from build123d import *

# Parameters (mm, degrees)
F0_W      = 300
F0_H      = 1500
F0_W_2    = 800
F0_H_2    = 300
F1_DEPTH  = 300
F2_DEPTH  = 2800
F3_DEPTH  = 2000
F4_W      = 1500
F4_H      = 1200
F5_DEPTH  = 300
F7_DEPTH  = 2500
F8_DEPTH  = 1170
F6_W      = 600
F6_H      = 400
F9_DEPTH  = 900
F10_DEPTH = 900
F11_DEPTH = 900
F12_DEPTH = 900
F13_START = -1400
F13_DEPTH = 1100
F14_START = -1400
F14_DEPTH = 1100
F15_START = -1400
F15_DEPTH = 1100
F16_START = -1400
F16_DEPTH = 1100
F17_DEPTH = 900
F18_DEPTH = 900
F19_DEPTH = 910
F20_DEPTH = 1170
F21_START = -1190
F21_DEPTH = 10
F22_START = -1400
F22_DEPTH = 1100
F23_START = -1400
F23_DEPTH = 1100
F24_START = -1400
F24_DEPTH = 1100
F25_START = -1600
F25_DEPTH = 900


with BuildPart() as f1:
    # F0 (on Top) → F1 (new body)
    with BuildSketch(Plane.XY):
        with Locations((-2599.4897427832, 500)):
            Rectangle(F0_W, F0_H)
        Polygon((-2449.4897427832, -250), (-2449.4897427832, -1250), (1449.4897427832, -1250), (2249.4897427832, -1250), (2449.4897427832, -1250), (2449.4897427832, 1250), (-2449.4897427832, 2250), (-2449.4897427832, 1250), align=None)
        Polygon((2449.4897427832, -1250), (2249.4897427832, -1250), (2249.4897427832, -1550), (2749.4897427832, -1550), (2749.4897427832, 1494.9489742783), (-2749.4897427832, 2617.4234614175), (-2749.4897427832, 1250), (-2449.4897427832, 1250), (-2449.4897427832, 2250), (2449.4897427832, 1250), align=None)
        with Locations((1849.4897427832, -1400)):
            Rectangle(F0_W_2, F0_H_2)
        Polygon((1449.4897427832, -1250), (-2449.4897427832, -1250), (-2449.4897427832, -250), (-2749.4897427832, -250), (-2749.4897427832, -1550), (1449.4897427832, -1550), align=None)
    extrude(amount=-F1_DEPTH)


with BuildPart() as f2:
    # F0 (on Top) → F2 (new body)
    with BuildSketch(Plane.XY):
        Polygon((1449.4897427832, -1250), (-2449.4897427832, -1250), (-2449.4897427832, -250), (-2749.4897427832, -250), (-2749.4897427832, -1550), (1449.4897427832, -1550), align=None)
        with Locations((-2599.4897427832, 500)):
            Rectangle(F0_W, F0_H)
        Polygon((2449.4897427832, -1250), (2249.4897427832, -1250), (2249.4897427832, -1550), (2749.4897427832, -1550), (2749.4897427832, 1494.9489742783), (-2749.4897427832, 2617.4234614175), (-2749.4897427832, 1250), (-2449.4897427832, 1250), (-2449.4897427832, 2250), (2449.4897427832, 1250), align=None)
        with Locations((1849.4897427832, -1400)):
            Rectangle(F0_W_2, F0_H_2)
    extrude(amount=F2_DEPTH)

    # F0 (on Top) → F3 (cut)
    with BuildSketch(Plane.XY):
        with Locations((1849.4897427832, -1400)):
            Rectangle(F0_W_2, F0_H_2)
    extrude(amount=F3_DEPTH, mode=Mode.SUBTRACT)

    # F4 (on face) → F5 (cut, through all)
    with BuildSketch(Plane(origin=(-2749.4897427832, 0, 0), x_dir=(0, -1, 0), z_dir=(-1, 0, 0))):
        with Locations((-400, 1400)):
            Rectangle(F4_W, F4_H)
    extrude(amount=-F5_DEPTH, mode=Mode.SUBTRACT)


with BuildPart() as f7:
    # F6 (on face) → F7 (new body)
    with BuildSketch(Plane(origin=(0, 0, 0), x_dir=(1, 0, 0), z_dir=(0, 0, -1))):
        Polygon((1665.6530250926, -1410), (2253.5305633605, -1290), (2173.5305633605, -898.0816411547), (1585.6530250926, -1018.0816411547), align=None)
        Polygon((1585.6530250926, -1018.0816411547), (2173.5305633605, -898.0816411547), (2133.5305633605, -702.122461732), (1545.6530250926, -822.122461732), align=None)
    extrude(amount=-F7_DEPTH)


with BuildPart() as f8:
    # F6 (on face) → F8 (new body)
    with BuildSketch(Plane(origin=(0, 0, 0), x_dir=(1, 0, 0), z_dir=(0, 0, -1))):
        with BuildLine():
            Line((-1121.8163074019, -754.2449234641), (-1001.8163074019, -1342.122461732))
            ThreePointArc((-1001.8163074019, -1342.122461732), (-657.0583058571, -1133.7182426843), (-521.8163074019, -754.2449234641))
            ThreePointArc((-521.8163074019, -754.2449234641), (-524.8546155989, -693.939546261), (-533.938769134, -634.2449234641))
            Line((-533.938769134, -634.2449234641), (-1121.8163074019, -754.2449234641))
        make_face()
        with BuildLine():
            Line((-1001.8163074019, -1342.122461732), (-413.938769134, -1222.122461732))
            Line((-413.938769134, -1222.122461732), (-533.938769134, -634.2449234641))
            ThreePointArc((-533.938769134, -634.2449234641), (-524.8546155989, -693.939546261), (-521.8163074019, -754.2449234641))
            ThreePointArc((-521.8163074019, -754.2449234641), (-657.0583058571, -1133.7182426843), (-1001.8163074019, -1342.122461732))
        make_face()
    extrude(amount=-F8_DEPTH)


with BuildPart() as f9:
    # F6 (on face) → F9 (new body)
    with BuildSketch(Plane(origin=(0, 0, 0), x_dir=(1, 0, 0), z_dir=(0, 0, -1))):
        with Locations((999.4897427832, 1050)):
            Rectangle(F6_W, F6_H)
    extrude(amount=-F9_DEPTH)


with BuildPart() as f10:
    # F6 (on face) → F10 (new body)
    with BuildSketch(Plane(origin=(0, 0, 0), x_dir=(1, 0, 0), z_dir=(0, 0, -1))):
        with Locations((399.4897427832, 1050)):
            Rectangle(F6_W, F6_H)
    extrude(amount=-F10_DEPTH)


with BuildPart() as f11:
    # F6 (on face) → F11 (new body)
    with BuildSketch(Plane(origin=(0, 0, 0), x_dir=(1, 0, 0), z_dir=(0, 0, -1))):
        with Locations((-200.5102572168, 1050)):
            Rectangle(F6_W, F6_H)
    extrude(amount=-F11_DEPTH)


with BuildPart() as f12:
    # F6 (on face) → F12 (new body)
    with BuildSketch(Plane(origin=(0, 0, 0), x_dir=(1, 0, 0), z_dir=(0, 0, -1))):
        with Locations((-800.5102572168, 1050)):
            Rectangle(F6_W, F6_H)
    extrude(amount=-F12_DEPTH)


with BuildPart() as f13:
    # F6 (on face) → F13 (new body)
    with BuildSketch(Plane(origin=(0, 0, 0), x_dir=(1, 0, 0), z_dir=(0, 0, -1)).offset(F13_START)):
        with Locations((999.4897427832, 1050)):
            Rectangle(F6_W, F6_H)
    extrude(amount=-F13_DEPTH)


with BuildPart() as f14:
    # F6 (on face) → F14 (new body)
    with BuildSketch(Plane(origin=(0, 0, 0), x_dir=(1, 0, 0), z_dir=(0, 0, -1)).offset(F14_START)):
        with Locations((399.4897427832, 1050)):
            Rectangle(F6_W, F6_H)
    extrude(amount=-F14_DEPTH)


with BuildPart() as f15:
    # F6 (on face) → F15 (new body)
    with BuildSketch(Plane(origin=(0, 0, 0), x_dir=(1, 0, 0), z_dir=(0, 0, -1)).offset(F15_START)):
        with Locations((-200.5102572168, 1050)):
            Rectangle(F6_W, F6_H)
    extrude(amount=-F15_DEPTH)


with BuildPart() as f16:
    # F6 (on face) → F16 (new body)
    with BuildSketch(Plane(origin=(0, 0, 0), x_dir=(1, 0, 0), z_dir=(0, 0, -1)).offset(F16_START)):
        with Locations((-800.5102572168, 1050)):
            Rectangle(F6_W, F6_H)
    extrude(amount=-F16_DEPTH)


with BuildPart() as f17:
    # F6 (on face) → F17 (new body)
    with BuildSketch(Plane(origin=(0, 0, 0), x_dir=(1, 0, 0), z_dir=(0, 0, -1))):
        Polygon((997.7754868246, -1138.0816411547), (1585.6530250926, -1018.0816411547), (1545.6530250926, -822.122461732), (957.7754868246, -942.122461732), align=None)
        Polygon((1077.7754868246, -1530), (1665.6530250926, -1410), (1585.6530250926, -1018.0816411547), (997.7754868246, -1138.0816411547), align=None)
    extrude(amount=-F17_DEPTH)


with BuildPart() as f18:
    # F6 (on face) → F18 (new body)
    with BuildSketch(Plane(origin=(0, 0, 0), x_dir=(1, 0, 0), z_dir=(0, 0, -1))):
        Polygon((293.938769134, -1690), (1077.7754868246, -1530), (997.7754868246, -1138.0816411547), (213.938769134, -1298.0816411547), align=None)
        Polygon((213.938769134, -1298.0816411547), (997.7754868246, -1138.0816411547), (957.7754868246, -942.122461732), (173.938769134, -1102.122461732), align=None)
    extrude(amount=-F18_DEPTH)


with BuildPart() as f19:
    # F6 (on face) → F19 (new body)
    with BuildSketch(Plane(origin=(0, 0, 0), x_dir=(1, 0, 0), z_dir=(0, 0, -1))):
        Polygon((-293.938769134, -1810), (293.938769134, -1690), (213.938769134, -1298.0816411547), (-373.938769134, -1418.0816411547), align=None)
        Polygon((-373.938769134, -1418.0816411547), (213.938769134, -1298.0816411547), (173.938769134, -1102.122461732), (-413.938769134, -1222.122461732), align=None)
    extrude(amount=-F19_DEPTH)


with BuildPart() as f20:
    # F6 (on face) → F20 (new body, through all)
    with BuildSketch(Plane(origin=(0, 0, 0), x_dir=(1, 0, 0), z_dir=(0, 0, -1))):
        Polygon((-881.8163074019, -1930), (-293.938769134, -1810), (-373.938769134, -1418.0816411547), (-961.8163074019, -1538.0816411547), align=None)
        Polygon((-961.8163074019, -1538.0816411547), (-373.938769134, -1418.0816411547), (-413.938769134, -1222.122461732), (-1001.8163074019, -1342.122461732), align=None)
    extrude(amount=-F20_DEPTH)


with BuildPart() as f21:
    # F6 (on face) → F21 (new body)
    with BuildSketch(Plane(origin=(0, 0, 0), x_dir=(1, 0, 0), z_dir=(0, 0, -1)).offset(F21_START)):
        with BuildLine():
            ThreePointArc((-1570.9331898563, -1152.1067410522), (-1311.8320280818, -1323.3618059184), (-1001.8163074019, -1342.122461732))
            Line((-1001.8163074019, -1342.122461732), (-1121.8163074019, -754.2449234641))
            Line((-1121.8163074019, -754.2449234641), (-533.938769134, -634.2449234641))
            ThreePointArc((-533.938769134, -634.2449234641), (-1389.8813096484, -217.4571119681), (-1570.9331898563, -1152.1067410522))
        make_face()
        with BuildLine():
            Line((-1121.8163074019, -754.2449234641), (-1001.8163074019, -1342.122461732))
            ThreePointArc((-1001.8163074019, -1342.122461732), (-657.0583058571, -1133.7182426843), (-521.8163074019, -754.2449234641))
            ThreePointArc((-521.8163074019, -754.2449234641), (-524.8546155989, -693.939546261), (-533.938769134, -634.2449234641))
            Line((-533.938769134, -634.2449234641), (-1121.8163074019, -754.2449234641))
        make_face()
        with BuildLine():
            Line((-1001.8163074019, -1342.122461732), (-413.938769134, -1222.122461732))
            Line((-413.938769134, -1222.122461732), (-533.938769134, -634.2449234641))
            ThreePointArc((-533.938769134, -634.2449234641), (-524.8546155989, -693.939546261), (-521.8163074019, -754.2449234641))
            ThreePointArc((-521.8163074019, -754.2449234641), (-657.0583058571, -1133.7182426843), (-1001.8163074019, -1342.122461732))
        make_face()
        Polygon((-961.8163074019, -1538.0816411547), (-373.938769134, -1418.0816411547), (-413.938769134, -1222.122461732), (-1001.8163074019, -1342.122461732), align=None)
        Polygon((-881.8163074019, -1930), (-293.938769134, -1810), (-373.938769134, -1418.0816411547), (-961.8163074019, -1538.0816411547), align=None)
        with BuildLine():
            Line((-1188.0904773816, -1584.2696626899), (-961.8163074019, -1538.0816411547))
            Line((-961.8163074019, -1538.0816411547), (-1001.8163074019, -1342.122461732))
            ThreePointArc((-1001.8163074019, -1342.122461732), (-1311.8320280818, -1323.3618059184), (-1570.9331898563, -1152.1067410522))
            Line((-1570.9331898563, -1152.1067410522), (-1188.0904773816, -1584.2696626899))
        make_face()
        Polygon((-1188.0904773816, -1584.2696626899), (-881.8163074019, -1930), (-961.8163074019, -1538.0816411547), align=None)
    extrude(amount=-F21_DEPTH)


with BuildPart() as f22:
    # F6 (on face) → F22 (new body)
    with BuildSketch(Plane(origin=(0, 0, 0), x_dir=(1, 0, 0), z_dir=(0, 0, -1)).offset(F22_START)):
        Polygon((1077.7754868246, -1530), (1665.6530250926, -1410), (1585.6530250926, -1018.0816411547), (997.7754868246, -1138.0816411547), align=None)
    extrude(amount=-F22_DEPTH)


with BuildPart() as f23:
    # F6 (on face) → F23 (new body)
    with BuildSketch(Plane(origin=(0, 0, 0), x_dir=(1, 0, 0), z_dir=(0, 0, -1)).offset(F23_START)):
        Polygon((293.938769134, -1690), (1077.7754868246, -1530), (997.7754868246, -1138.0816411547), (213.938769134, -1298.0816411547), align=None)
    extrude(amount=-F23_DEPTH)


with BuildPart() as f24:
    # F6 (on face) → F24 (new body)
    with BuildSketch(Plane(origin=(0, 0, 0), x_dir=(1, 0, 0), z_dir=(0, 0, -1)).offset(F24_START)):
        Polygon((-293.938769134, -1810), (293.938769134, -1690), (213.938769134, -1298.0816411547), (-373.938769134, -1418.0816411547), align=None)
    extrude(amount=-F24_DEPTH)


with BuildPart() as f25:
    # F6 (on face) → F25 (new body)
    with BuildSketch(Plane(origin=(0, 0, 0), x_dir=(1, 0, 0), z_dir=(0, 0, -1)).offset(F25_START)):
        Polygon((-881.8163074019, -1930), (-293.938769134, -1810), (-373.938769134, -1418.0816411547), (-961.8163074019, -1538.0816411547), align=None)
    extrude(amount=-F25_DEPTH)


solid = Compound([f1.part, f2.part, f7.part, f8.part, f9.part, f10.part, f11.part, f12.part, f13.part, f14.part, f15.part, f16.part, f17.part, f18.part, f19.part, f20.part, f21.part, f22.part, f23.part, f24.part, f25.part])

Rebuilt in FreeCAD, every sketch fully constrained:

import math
import FreeCAD as App
import Part
import Sketcher

doc = App.newDocument("Part")
body = doc.addObject("PartDesign::Body", "Body")

sketch1 = body.newObject("Sketcher::SketchObject", "Sketch")
sketch1.AttachmentSupport = (doc.getObject("XY_Plane"), [""])
sketch1.MapMode = "FlatFace"
sketch1.addGeometry([
    Part.LineSegment(App.Vector(2749, -1550, 0), App.Vector(2749, 1495, 0)),
    Part.LineSegment(App.Vector(2749, 1495, 0), App.Vector(-2749, 2617, 0)),
    Part.LineSegment(App.Vector(-2749, 2617, 0), App.Vector(-2749, -1550, 0)),
    Part.LineSegment(App.Vector(-2749, -1550, 0), App.Vector(2749, -1550, 0)),
], False)
sketch1.addConstraint([
    Sketcher.Constraint("Coincident", 0, 2, 1, 1),
    Sketcher.Constraint("Coincident", 1, 2, 2, 1),
    Sketcher.Constraint("Coincident", 2, 2, 3, 1),
    Sketcher.Constraint("Coincident", 3, 2, 0, 1),
    Sketcher.Constraint("Vertical", 0),
    Sketcher.Constraint("Vertical", 2),
    Sketcher.Constraint("Horizontal", 3),
    Sketcher.Constraint("DistanceY", 2, 2, -1, 1, 1550.0),
    Sketcher.Constraint("DistanceY", 2, 2, 2, 1, 4167.423461),
    Sketcher.Constraint("DistanceX", 3, 1, 3, 2, 5498.979486),
    Sketcher.Constraint("DistanceY", 0, 1, 0, 2, 3044.948974),
    Sketcher.Constraint("DistanceX", -1, 1, 0, 2, 2749.489743),
])
pad1 = body.newObject("PartDesign::Pad", "Pad")
pad1.Profile = sketch1
pad1.Length = 300
pad1.Reversed = True
body2 = doc.addObject("PartDesign::Body", "Body001")

sketch2 = body2.newObject("Sketcher::SketchObject", "Sketch001")
sketch2.AttachmentSupport = (doc.getObject("XY_Plane001"), [""])
sketch2.MapMode = "FlatFace"
sketch2.addGeometry([
    Part.LineSegment(App.Vector(2749, -1550, 0), App.Vector(2749, 1495, 0)),
    Part.LineSegment(App.Vector(2749, 1495, 0), App.Vector(-2749, 2617, 0)),
    Part.LineSegment(App.Vector(-2749, 2617, 0), App.Vector(-2749, -1550, 0)),
    Part.LineSegment(App.Vector(-2749, -1550, 0), App.Vector(2749, -1550, 0)),
    Part.LineSegment(App.Vector(-2449, -1250, 0), App.Vector(-2449, 2250, 0)),
    Part.LineSegment(App.Vector(-2449, 2250, 0), App.Vector(2449, 1250, 0)),
    Part.LineSegment(App.Vector(2449, 1250, 0), App.Vector(2449, -1250, 0)),
    Part.LineSegment(App.Vector(2449, -1250, 0), App.Vector(-2449, -1250, 0)),
], False)
sketch2.addConstraint([
    Sketcher.Constraint("Coincident", 0, 2, 1, 1),
    Sketcher.Constraint("Coincident", 1, 2, 2, 1),
    Sketcher.Constraint("Coincident", 2, 2, 3, 1),
    Sketcher.Constraint("Coincident", 3, 2, 0, 1),
    Sketcher.Constraint("Coincident", 4, 2, 5, 1),
    Sketcher.Constraint("Coincident", 5, 2, 6, 1),
    Sketcher.Constraint("Coincident", 6, 2, 7, 1),
    Sketcher.Constraint("Coincident", 7, 2, 4, 1),
    Sketcher.Constraint("Vertical", 0),
    Sketcher.Constraint("Vertical", 2),
    Sketcher.Constraint("Horizontal", 3),
    Sketcher.Constraint("Vertical", 4),
    Sketcher.Constraint("Vertical", 6),
    Sketcher.Constraint("Horizontal", 7),
    Sketcher.Constraint("Symmetric", 5, 2, 7, 2, -1, 1),
    Sketcher.Constraint("Parallel", 1, 5),
    Sketcher.Constraint("DistanceY", 4, 1, 4, 2, 3500.0),
    Sketcher.Constraint("DistanceY", 6, 2, 6, 1, 2500.0),
    Sketcher.Constraint("Distance", 5, 5000.0),
    Sketcher.Constraint("DistanceY", 2, 2, -1, 1, 1550.0),
    Sketcher.Constraint("DistanceX", 1, 2, 4, 2, 300.0),
    Sketcher.Constraint("DistanceX", 5, 2, 0, 2, 300.0),
    Sketcher.Constraint("DistanceY", 2, 2, 2, 1, 4167.423461),
])
pad2 = body2.newObject("PartDesign::Pad", "Pad001")
pad2.Profile = sketch2
pad2.Length = 2800

sketch3 = body2.newObject("Sketcher::SketchObject", "Sketch002")
sketch3.AttachmentSupport = (doc.getObject("XY_Plane001"), [""])
sketch3.MapMode = "FlatFace"
sketch3.addGeometry([
    Part.LineSegment(App.Vector(1449, -1250, 0), App.Vector(1449, -1550, 0)),
    Part.LineSegment(App.Vector(1449, -1550, 0), App.Vector(2249, -1550, 0)),
    Part.LineSegment(App.Vector(2249, -1550, 0), App.Vector(2249, -1250, 0)),
    Part.LineSegment(App.Vector(2249, -1250, 0), App.Vector(1449, -1250, 0)),
], False)
sketch3.addConstraint([
    Sketcher.Constraint("Coincident", 0, 2, 1, 1),
    Sketcher.Constraint("Coincident", 1, 2, 2, 1),
    Sketcher.Constraint("Coincident", 2, 2, 3, 1),
    Sketcher.Constraint("Coincident", 3, 2, 0, 1),
    Sketcher.Constraint("Vertical", 0),
    Sketcher.Constraint("Horizontal", 1),
    Sketcher.Constraint("Vertical", 2),
    Sketcher.Constraint("Horizontal", 3),
    Sketcher.Constraint("DistanceX", 1, 1, 1, 2, 800.0),
    Sketcher.Constraint("DistanceY", 0, 2, 0, 1, 300.0),
    Sketcher.Constraint("DistanceY", 0, 2, -1, 1, 1550.0),
    Sketcher.Constraint("DistanceX", -1, 1, 0, 2, 1449.489743),
])
pocket1 = body2.newObject("PartDesign::Pocket", "Pocket")
pocket1.Profile = sketch3
pocket1.Length = 2000
pocket1.Reversed = True

sketch4 = body2.newObject("Sketcher::SketchObject", "Sketch003")
sketch4.AttachmentSupport = (doc.getObject("YZ_Plane001"), [""])
sketch4.MapMode = "FlatFace"
sketch4.AttachmentOffset = App.Placement(App.Vector(0, 0, -2749.489743), App.Rotation())
sketch4.addGeometry([
    Part.LineSegment(App.Vector(1150, 2000, 0), App.Vector(1150, 800, 0)),
    Part.LineSegment(App.Vector(1150, 800, 0), App.Vector(-350, 800, 0)),
    Part.LineSegment(App.Vector(-350, 800, 0), App.Vector(-350, 2000, 0)),
    Part.LineSegment(App.Vector(-350, 2000, 0), App.Vector(1150, 2000, 0)),
], False)
sketch4.addConstraint([
    Sketcher.Constraint("Coincident", 0, 2, 1, 1),
    Sketcher.Constraint("Coincident", 1, 2, 2, 1),
    Sketcher.Constraint("Coincident", 2, 2, 3, 1),
    Sketcher.Constraint("Coincident", 3, 2, 0, 1),
    Sketcher.Constraint("Vertical", 0),
    Sketcher.Constraint("Horizontal", 1),
    Sketcher.Constraint("Vertical", 2),
    Sketcher.Constraint("Horizontal", 3),
    Sketcher.Constraint("DistanceX", 1, 2, 1, 1, 1500.0),
    Sketcher.Constraint("DistanceY", 0, 2, 0, 1, 1200.0),
    Sketcher.Constraint("DistanceX", -1, 1, 0, 2, 1150.0),
    Sketcher.Constraint("DistanceY", -1, 1, 0, 2, 800.0),
])
pocket2 = body2.newObject("PartDesign::Pocket", "Pocket001")
pocket2.Profile = sketch4
pocket2.Length = 300
pocket2.Reversed = True
body3 = doc.addObject("PartDesign::Body", "Body002")

sketch5 = body3.newObject("Sketcher::SketchObject", "Sketch004")
sketch5.AttachmentSupport = (doc.getObject("XY_Plane002"), [""])
sketch5.MapMode = "FlatFace"
sketch5.addGeometry([
    Part.LineSegment(App.Vector(1666, 1410, 0), App.Vector(2254, 1290, 0)),
    Part.LineSegment(App.Vector(2254, 1290, 0), App.Vector(2134, 702, 0)),
    Part.LineSegment(App.Vector(2134, 702, 0), App.Vector(1546, 822, 0)),
    Part.LineSegment(App.Vector(1546, 822, 0), App.Vector(1666, 1410, 0)),
], False)
sketch5.addConstraint([
    Sketcher.Constraint("Coincident", 0, 2, 1, 1),
    Sketcher.Constraint("Coincident", 1, 2, 2, 1),
    Sketcher.Constraint("Coincident", 2, 2, 3, 1),
    Sketcher.Constraint("Coincident", 3, 2, 0, 1),
    Sketcher.Constraint("Perpendicular", 0, 1),
    Sketcher.Constraint("Perpendicular", 1, 2),
    Sketcher.Constraint("Perpendicular", 2, 3),
    Sketcher.Constraint("Equal", 0, 1),
    Sketcher.Constraint("Distance", 0, 600.0),
    Sketcher.Constraint("DistanceY", -1, 1, 0, 2, 1290.0),
    Sketcher.Constraint("DistanceY", -1, 1, 3, 2, 1410.0),
    Sketcher.Constraint("DistanceX", -1, 1, 0, 2, 2253.530563),
])
pad3 = body3.newObject("PartDesign::Pad", "Pad002")
pad3.Profile = sketch5
pad3.Length = 2500
body4 = doc.addObject("PartDesign::Body", "Body003")

sketch6 = body4.newObject("Sketcher::SketchObject", "Sketch005")
sketch6.AttachmentSupport = (doc.getObject("XY_Plane003"), [""])
sketch6.MapMode = "FlatFace"
sketch6.addGeometry([
    Part.LineSegment(App.Vector(-1122, 754, 0), App.Vector(-1002, 1342, 0)),
    Part.LineSegment(App.Vector(-1002, 1342, 0), App.Vector(-414, 1222, 0)),
    Part.LineSegment(App.Vector(-414, 1222, 0), App.Vector(-534, 634, 0)),
    Part.LineSegment(App.Vector(-534, 634, 0), App.Vector(-1122, 754, 0)),
], False)
sketch6.addConstraint([
    Sketcher.Constraint("Coincident", 0, 2, 1, 1),
    Sketcher.Constraint("Coincident", 1, 2, 2, 1),
    Sketcher.Constraint("Coincident", 2, 2, 3, 1),
    Sketcher.Constraint("Coincident", 3, 2, 0, 1),
    Sketcher.Constraint("Perpendicular", 0, 1),
    Sketcher.Constraint("Perpendicular", 1, 2),
    Sketcher.Constraint("Perpendicular", 2, 3),
    Sketcher.Constraint("Equal", 0, 1),
    Sketcher.Constraint("Distance", 0, 600.0),
    Sketcher.Constraint("DistanceY", 1, 2, 0, 2, 120.0),
    Sketcher.Constraint("DistanceY", -1, 1, 0, 2, 1342.122462),
    Sketcher.Constraint("DistanceX", 1, 2, -1, 1, 413.938769),
])
pad4 = body4.newObject("PartDesign::Pad", "Pad003")
pad4.Profile = sketch6
pad4.Length = 1170
body5 = doc.addObject("PartDesign::Body", "Body004")

sketch7 = body5.newObject("Sketcher::SketchObject", "Sketch006")
sketch7.AttachmentSupport = (doc.getObject("XY_Plane004"), [""])
sketch7.MapMode = "FlatFace"
sketch7.addGeometry([
    Part.LineSegment(App.Vector(699, -1250, 0), App.Vector(699, -850, 0)),
    Part.LineSegment(App.Vector(699, -850, 0), App.Vector(1299, -850, 0)),
    Part.LineSegment(App.Vector(1299, -850, 0), App.Vector(1299, -1250, 0)),
    Part.LineSegment(App.Vector(1299, -1250, 0), App.Vector(699, -1250, 0)),
], False)
sketch7.addConstraint([
    Sketcher.Constraint("Coincident", 0, 2, 1, 1),
    Sketcher.Constraint("Coincident", 1, 2, 2, 1),
    Sketcher.Constraint("Coincident", 2, 2, 3, 1),
    Sketcher.Constraint("Coincident", 3, 2, 0, 1),
    Sketcher.Constraint("Vertical", 0),
    Sketcher.Constraint("Horizontal", 1),
    Sketcher.Constraint("Vertical", 2),
    Sketcher.Constraint("Horizontal", 3),
    Sketcher.Constraint("DistanceX", 1, 1, 1, 2, 600.0),
    Sketcher.Constraint("DistanceY", 0, 1, 0, 2, 400.0),
    Sketcher.Constraint("DistanceY", 0, 2, -1, 1, 850.0),
    Sketcher.Constraint("DistanceX", -1, 1, 0, 2, 699.489743),
])
pad5 = body5.newObject("PartDesign::Pad", "Pad004")
pad5.Profile = sketch7
pad5.Length = 900
body6 = doc.addObject("PartDesign::Body", "Body005")

sketch8 = body6.newObject("Sketcher::SketchObject", "Sketch007")
sketch8.AttachmentSupport = (doc.getObject("XY_Plane005"), [""])
sketch8.MapMode = "FlatFace"
sketch8.addGeometry([
    Part.LineSegment(App.Vector(99, -1250, 0), App.Vector(99, -850, 0)),
    Part.LineSegment(App.Vector(99, -850, 0), App.Vector(699, -850, 0)),
    Part.LineSegment(App.Vector(699, -850, 0), App.Vector(699, -1250, 0)),
    Part.LineSegment(App.Vector(699, -1250, 0), App.Vector(99, -1250, 0)),
], False)
sketch8.addConstraint([
    Sketcher.Constraint("Coincident", 0, 2, 1, 1),
    Sketcher.Constraint("Coincident", 1, 2, 2, 1),
    Sketcher.Constraint("Coincident", 2, 2, 3, 1),
    Sketcher.Constraint("Coincident", 3, 2, 0, 1),
    Sketcher.Constraint("Vertical", 0),
    Sketcher.Constraint("Horizontal", 1),
    Sketcher.Constraint("Vertical", 2),
    Sketcher.Constraint("Horizontal", 3),
    Sketcher.Constraint("DistanceX", 1, 1, 1, 2, 600.0),
    Sketcher.Constraint("DistanceY", 0, 1, 0, 2, 400.0),
    Sketcher.Constraint("DistanceY", 0, 2, -1, 1, 850.0),
    Sketcher.Constraint("DistanceX", -1, 1, 0, 2, 99.489743),
])
pad6 = body6.newObject("PartDesign::Pad", "Pad005")
pad6.Profile = sketch8
pad6.Length = 900
body7 = doc.addObject("PartDesign::Body", "Body006")

sketch9 = body7.newObject("Sketcher::SketchObject", "Sketch008")
sketch9.AttachmentSupport = (doc.getObject("XY_Plane006"), [""])
sketch9.MapMode = "FlatFace"
sketch9.addGeometry([
    Part.LineSegment(App.Vector(-501, -1250, 0), App.Vector(-501, -850, 0)),
    Part.LineSegment(App.Vector(-501, -850, 0), App.Vector(99, -850, 0)),
    Part.LineSegment(App.Vector(99, -850, 0), App.Vector(99, -1250, 0)),
    Part.LineSegment(App.Vector(99, -1250, 0), App.Vector(-501, -1250, 0)),
], False)
sketch9.addConstraint([
    Sketcher.Constraint("Coincident", 0, 2, 1, 1),
    Sketcher.Constraint("Coincident", 1, 2, 2, 1),
    Sketcher.Constraint("Coincident", 2, 2, 3, 1),
    Sketcher.Constraint("Coincident", 3, 2, 0, 1),
    Sketcher.Constraint("Vertical", 0),
    Sketcher.Constraint("Horizontal", 1),
    Sketcher.Constraint("Vertical", 2),
    Sketcher.Constraint("Horizontal", 3),
    Sketcher.Constraint("DistanceX", 1, 1, 1, 2, 600.0),
    Sketcher.Constraint("DistanceY", 0, 1, 0, 2, 400.0),
    Sketcher.Constraint("DistanceY", 0, 2, -1, 1, 850.0),
    Sketcher.Constraint("DistanceX", 0, 2, -1, 1, 500.510257),
])
pad7 = body7.newObject("PartDesign::Pad", "Pad006")
pad7.Profile = sketch9
pad7.Length = 900
body8 = doc.addObject("PartDesign::Body", "Body007")

sketch10 = body8.newObject("Sketcher::SketchObject", "Sketch009")
sketch10.AttachmentSupport = (doc.getObject("XY_Plane007"), [""])
sketch10.MapMode = "FlatFace"
sketch10.addGeometry([
    Part.LineSegment(App.Vector(-1101, -1250, 0), App.Vector(-1101, -850, 0)),
    Part.LineSegment(App.Vector(-1101, -850, 0), App.Vector(-501, -850, 0)),
    Part.LineSegment(App.Vector(-501, -850, 0), App.Vector(-501, -1250, 0)),
    Part.LineSegment(App.Vector(-501, -1250, 0), App.Vector(-1101, -1250, 0)),
], False)
sketch10.addConstraint([
    Sketcher.Constraint("Coincident", 0, 2, 1, 1),
    Sketcher.Constraint("Coincident", 1, 2, 2, 1),
    Sketcher.Constraint("Coincident", 2, 2, 3, 1),
    Sketcher.Constraint("Coincident", 3, 2, 0, 1),
    Sketcher.Constraint("Vertical", 0),
    Sketcher.Constraint("Horizontal", 1),
    Sketcher.Constraint("Vertical", 2),
    Sketcher.Constraint("Horizontal", 3),
    Sketcher.Constraint("DistanceX", 1, 1, 1, 2, 600.0),
    Sketcher.Constraint("DistanceY", 0, 1, 0, 2, 400.0),
    Sketcher.Constraint("DistanceY", 0, 2, -1, 1, 850.0),
    Sketcher.Constraint("DistanceX", 0, 2, -1, 1, 1100.510257),
])
pad8 = body8.newObject("PartDesign::Pad", "Pad007")
pad8.Profile = sketch10
pad8.Length = 900
body9 = doc.addObject("PartDesign::Body", "Body008")

sketch11 = body9.newObject("Sketcher::SketchObject", "Sketch010")
sketch11.AttachmentSupport = (doc.getObject("XY_Plane008"), [""])
sketch11.MapMode = "FlatFace"
sketch11.AttachmentOffset = App.Placement(App.Vector(0, 0, 1400), App.Rotation())
sketch11.addGeometry([
    Part.LineSegment(App.Vector(699, -1250, 0), App.Vector(699, -850, 0)),
    Part.LineSegment(App.Vector(699, -850, 0), App.Vector(1299, -850, 0)),
    Part.LineSegment(App.Vector(1299, -850, 0), App.Vector(1299, -1250, 0)),
    Part.LineSegment(App.Vector(1299, -1250, 0), App.Vector(699, -1250, 0)),
], False)
sketch11.addConstraint([
    Sketcher.Constraint("Coincident", 0, 2, 1, 1),
    Sketcher.Constraint("Coincident", 1, 2, 2, 1),
    Sketcher.Constraint("Coincident", 2, 2, 3, 1),
    Sketcher.Constraint("Coincident", 3, 2, 0, 1),
    Sketcher.Constraint("Vertical", 0),
    Sketcher.Constraint("Horizontal", 1),
    Sketcher.Constraint("Vertical", 2),
    Sketcher.Constraint("Horizontal", 3),
    Sketcher.Constraint("DistanceX", 1, 1, 1, 2, 600.0),
    Sketcher.Constraint("DistanceY", 0, 1, 0, 2, 400.0),
    Sketcher.Constraint("DistanceY", 0, 2, -1, 1, 850.0),
    Sketcher.Constraint("DistanceX", -1, 1, 0, 2, 699.489743),
])
pad9 = body9.newObject("PartDesign::Pad", "Pad008")
pad9.Profile = sketch11
pad9.Length = 1100
body10 = doc.addObject("PartDesign::Body", "Body009")

sketch12 = body10.newObject("Sketcher::SketchObject", "Sketch011")
sketch12.AttachmentSupport = (doc.getObject("XY_Plane009"), [""])
sketch12.MapMode = "FlatFace"
sketch12.AttachmentOffset = App.Placement(App.Vector(0, 0, 1400), App.Rotation())
sketch12.addGeometry([
    Part.LineSegment(App.Vector(99, -1250, 0), App.Vector(99, -850, 0)),
    Part.LineSegment(App.Vector(99, -850, 0), App.Vector(699, -850, 0)),
    Part.LineSegment(App.Vector(699, -850, 0), App.Vector(699, -1250, 0)),
    Part.LineSegment(App.Vector(699, -1250, 0), App.Vector(99, -1250, 0)),
], False)
sketch12.addConstraint([
    Sketcher.Constraint("Coincident", 0, 2, 1, 1),
    Sketcher.Constraint("Coincident", 1, 2, 2, 1),
    Sketcher.Constraint("Coincident", 2, 2, 3, 1),
    Sketcher.Constraint("Coincident", 3, 2, 0, 1),
    Sketcher.Constraint("Vertical", 0),
    Sketcher.Constraint("Horizontal", 1),
    Sketcher.Constraint("Vertical", 2),
    Sketcher.Constraint("Horizontal", 3),
    Sketcher.Constraint("DistanceX", 1, 1, 1, 2, 600.0),
    Sketcher.Constraint("DistanceY", 0, 1, 0, 2, 400.0),
    Sketcher.Constraint("DistanceY", 0, 2, -1, 1, 850.0),
    Sketcher.Constraint("DistanceX", -1, 1, 0, 2, 99.489743),
])
pad10 = body10.newObject("PartDesign::Pad", "Pad009")
pad10.Profile = sketch12
pad10.Length = 1100
body11 = doc.addObject("PartDesign::Body", "Body010")

sketch13 = body11.newObject("Sketcher::SketchObject", "Sketch012")
sketch13.AttachmentSupport = (doc.getObject("XY_Plane010"), [""])
sketch13.MapMode = "FlatFace"
sketch13.AttachmentOffset = App.Placement(App.Vector(0, 0, 1400), App.Rotation())
sketch13.addGeometry([
    Part.LineSegment(App.Vector(-501, -1250, 0), App.Vector(-501, -850, 0)),
    Part.LineSegment(App.Vector(-501, -850, 0), App.Vector(99, -850, 0)),
    Part.LineSegment(App.Vector(99, -850, 0), App.Vector(99, -1250, 0)),
    Part.LineSegment(App.Vector(99, -1250, 0), App.Vector(-501, -1250, 0)),
], False)
sketch13.addConstraint([
    Sketcher.Constraint("Coincident", 0, 2, 1, 1),
    Sketcher.Constraint("Coincident", 1, 2, 2, 1),
    Sketcher.Constraint("Coincident", 2, 2, 3, 1),
    Sketcher.Constraint("Coincident", 3, 2, 0, 1),
    Sketcher.Constraint("Vertical", 0),
    Sketcher.Constraint("Horizontal", 1),
    Sketcher.Constraint("Vertical", 2),
    Sketcher.Constraint("Horizontal", 3),
    Sketcher.Constraint("DistanceX", 1, 1, 1, 2, 600.0),
    Sketcher.Constraint("DistanceY", 0, 1, 0, 2, 400.0),
    Sketcher.Constraint("DistanceY", 0, 2, -1, 1, 850.0),
    Sketcher.Constraint("DistanceX", 0, 2, -1, 1, 500.510257),
])
pad11 = body11.newObject("PartDesign::Pad", "Pad010")
pad11.Profile = sketch13
pad11.Length = 1100
body12 = doc.addObject("PartDesign::Body", "Body011")

sketch14 = body12.newObject("Sketcher::SketchObject", "Sketch013")
sketch14.AttachmentSupport = (doc.getObject("XY_Plane011"), [""])
sketch14.MapMode = "FlatFace"
sketch14.AttachmentOffset = App.Placement(App.Vector(0, 0, 1400), App.Rotation())
sketch14.addGeometry([
    Part.LineSegment(App.Vector(-1101, -1250, 0), App.Vector(-1101, -850, 0)),
    Part.LineSegment(App.Vector(-1101, -850, 0), App.Vector(-501, -850, 0)),
    Part.LineSegment(App.Vector(-501, -850, 0), App.Vector(-501, -1250, 0)),
    Part.LineSegment(App.Vector(-501, -1250, 0), App.Vector(-1101, -1250, 0)),
], False)
sketch14.addConstraint([
    Sketcher.Constraint("Coincident", 0, 2, 1, 1),
    Sketcher.Constraint("Coincident", 1, 2, 2, 1),
    Sketcher.Constraint("Coincident", 2, 2, 3, 1),
    Sketcher.Constraint("Coincident", 3, 2, 0, 1),
    Sketcher.Constraint("Vertical", 0),
    Sketcher.Constraint("Horizontal", 1),
    Sketcher.Constraint("Vertical", 2),
    Sketcher.Constraint("Horizontal", 3),
    Sketcher.Constraint("DistanceX", 1, 1, 1, 2, 600.0),
    Sketcher.Constraint("DistanceY", 0, 1, 0, 2, 400.0),
    Sketcher.Constraint("DistanceY", 0, 2, -1, 1, 850.0),
    Sketcher.Constraint("DistanceX", 0, 2, -1, 1, 1100.510257),
])
pad12 = body12.newObject("PartDesign::Pad", "Pad011")
pad12.Profile = sketch14
pad12.Length = 1100
body13 = doc.addObject("PartDesign::Body", "Body012")

sketch15 = body13.newObject("Sketcher::SketchObject", "Sketch014")
sketch15.AttachmentSupport = (doc.getObject("XY_Plane012"), [""])
sketch15.MapMode = "FlatFace"
sketch15.addGeometry([
    Part.LineSegment(App.Vector(1546, 822, 0), App.Vector(958, 942, 0)),
    Part.LineSegment(App.Vector(958, 942, 0), App.Vector(1078, 1530, 0)),
    Part.LineSegment(App.Vector(1078, 1530, 0), App.Vector(1666, 1410, 0)),
    Part.LineSegment(App.Vector(1666, 1410, 0), App.Vector(1546, 822, 0)),
], False)
sketch15.addConstraint([
    Sketcher.Constraint("Coincident", 0, 2, 1, 1),
    Sketcher.Constraint("Coincident", 1, 2, 2, 1),
    Sketcher.Constraint("Coincident", 2, 2, 3, 1),
    Sketcher.Constraint("Coincident", 3, 2, 0, 1),
    Sketcher.Constraint("Perpendicular", 0, 1),
    Sketcher.Constraint("Perpendicular", 1, 2),
    Sketcher.Constraint("Perpendicular", 2, 3),
    Sketcher.Constraint("Equal", 0, 1),
    Sketcher.Constraint("Distance", 0, 600.0),
    Sketcher.Constraint("DistanceY", -1, 1, 1, 2, 1530.0),
    Sketcher.Constraint("DistanceY", -1, 1, 2, 2, 1410.0),
    Sketcher.Constraint("DistanceX", -1, 1, 0, 2, 957.775487),
])
pad13 = body13.newObject("PartDesign::Pad", "Pad012")
pad13.Profile = sketch15
pad13.Length = 900
body14 = doc.addObject("PartDesign::Body", "Body013")

sketch16 = body14.newObject("Sketcher::SketchObject", "Sketch015")
sketch16.AttachmentSupport = (doc.getObject("XY_Plane013"), [""])
sketch16.MapMode = "FlatFace"
sketch16.addGeometry([
    Part.LineSegment(App.Vector(294, 1690, 0), App.Vector(1078, 1530, 0)),
    Part.LineSegment(App.Vector(1078, 1530, 0), App.Vector(958, 942, 0)),
    Part.LineSegment(App.Vector(958, 942, 0), App.Vector(174, 1102, 0)),
    Part.LineSegment(App.Vector(174, 1102, 0), App.Vector(294, 1690, 0)),
], False)
sketch16.addConstraint([
    Sketcher.Constraint("Coincident", 0, 2, 1, 1),
    Sketcher.Constraint("Coincident", 1, 2, 2, 1),
    Sketcher.Constraint("Coincident", 2, 2, 3, 1),
    Sketcher.Constraint("Coincident", 3, 2, 0, 1),
    Sketcher.Constraint("Perpendicular", 0, 1),
    Sketcher.Constraint("Perpendicular", 1, 2),
    Sketcher.Constraint("Perpendicular", 2, 3),
    Sketcher.Constraint("Distance", 0, 800.0),
    Sketcher.Constraint("Distance", 1, 600.0),
    Sketcher.Constraint("DistanceY", -1, 1, 0, 2, 1530.0),
    Sketcher.Constraint("DistanceY", -1, 1, 3, 2, 1690.0),
    Sketcher.Constraint("DistanceX", -1, 1, 2, 2, 173.938769),
])
pad14 = body14.newObject("PartDesign::Pad", "Pad013")
pad14.Profile = sketch16
pad14.Length = 900
body15 = doc.addObject("PartDesign::Body", "Body014")

sketch17 = body15.newObject("Sketcher::SketchObject", "Sketch016")
sketch17.AttachmentSupport = (doc.getObject("XY_Plane014"), [""])
sketch17.MapMode = "FlatFace"
sketch17.addGeometry([
    Part.LineSegment(App.Vector(-294, 1810, 0), App.Vector(294, 1690, 0)),
    Part.LineSegment(App.Vector(294, 1690, 0), App.Vector(174, 1102, 0)),
    Part.LineSegment(App.Vector(174, 1102, 0), App.Vector(-414, 1222, 0)),
    Part.LineSegment(App.Vector(-414, 1222, 0), App.Vector(-294, 1810, 0)),
], False)
sketch17.addConstraint([
    Sketcher.Constraint("Coincident", 0, 2, 1, 1),
    Sketcher.Constraint("Coincident", 1, 2, 2, 1),
    Sketcher.Constraint("Coincident", 2, 2, 3, 1),
    Sketcher.Constraint("Coincident", 3, 2, 0, 1),
    Sketcher.Constraint("Perpendicular", 0, 1),
    Sketcher.Constraint("Perpendicular", 1, 2),
    Sketcher.Constraint("Perpendicular", 2, 3),
    Sketcher.Constraint("Equal", 0, 1),
    Sketcher.Constraint("Distance", 0, 600.0),
    Sketcher.Constraint("DistanceY", -1, 1, 0, 2, 1690.0),
    Sketcher.Constraint("DistanceY", -1, 1, 3, 2, 1810.0),
    Sketcher.Constraint("DistanceX", -1, 1, 0, 2, 293.938769),
])
pad15 = body15.newObject("PartDesign::Pad", "Pad014")
pad15.Profile = sketch17
pad15.Length = 910
body16 = doc.addObject("PartDesign::Body", "Body015")

sketch18 = body16.newObject("Sketcher::SketchObject", "Sketch017")
sketch18.AttachmentSupport = (doc.getObject("XY_Plane015"), [""])
sketch18.MapMode = "FlatFace"
sketch18.addGeometry([
    Part.LineSegment(App.Vector(-882, 1930, 0), App.Vector(-294, 1810, 0)),
    Part.LineSegment(App.Vector(-294, 1810, 0), App.Vector(-414, 1222, 0)),
    Part.LineSegment(App.Vector(-414, 1222, 0), App.Vector(-1002, 1342, 0)),
    Part.LineSegment(App.Vector(-1002, 1342, 0), App.Vector(-882, 1930, 0)),
], False)
sketch18.addConstraint([
    Sketcher.Constraint("Coincident", 0, 2, 1, 1),
    Sketcher.Constraint("Coincident", 1, 2, 2, 1),
    Sketcher.Constraint("Coincident", 2, 2, 3, 1),
    Sketcher.Constraint("Coincident", 3, 2, 0, 1),
    Sketcher.Constraint("Perpendicular", 0, 1),
    Sketcher.Constraint("Perpendicular", 1, 2),
    Sketcher.Constraint("Perpendicular", 2, 3),
    Sketcher.Constraint("Equal", 0, 1),
    Sketcher.Constraint("Distance", 0, 600.0),
    Sketcher.Constraint("DistanceY", -1, 1, 0, 2, 1810.0),
    Sketcher.Constraint("DistanceY", -1, 1, 3, 2, 1930.0),
    Sketcher.Constraint("DistanceX", 0, 2, -1, 1, 293.938769),
])
pad16 = body16.newObject("PartDesign::Pad", "Pad015")
pad16.Profile = sketch18
pad16.Length = 1170
body17 = doc.addObject("PartDesign::Body", "Body016")

sketch19 = body17.newObject("Sketcher::SketchObject", "Sketch018")
sketch19.AttachmentSupport = (doc.getObject("XY_Plane016"), [""])
sketch19.MapMode = "FlatFace"
sketch19.AttachmentOffset = App.Placement(App.Vector(0, 0, 1190), App.Rotation())
sketch19.addGeometry([
    Part.ArcOfCircle(Part.Circle(App.Vector(-1122, 754, 0), App.Vector(0, 0, 1), 600), math.radians(138), math.radians(348)),
    Part.LineSegment(App.Vector(-1571, 1152, 0), App.Vector(-882, 1930, 0)),
    Part.LineSegment(App.Vector(-882, 1930, 0), App.Vector(-294, 1810, 0)),
    Part.LineSegment(App.Vector(-294, 1810, 0), App.Vector(-534, 634, 0)),
], False)
sketch19.addConstraint([
    Sketcher.Constraint("Tangent", 0, 1, 1, 1),
    Sketcher.Constraint("Coincident", 1, 2, 2, 1),
    Sketcher.Constraint("Coincident", 2, 2, 3, 1),
    Sketcher.Constraint("Tangent", 3, 2, 0, 2),
    Sketcher.Constraint("Perpendicular", 2, 3),
    Sketcher.Constraint("Radius", 0, 600.0),
    Sketcher.Constraint("Distance", 2, 600.0),
    Sketcher.Constraint("Distance", 3, 1200.0),
    Sketcher.Constraint("DistanceY", -1, 1, 1, 2, 1930.0),
    Sketcher.Constraint("DistanceY", -1, 1, 2, 2, 1810.0),
    Sketcher.Constraint("DistanceX", 2, 2, -1, 1, 293.938769),
])
pad17 = body17.newObject("PartDesign::Pad", "Pad016")
pad17.Profile = sketch19
pad17.Length = 10
body18 = doc.addObject("PartDesign::Body", "Body017")

sketch20 = body18.newObject("Sketcher::SketchObject", "Sketch019")
sketch20.AttachmentSupport = (doc.getObject("XY_Plane017"), [""])
sketch20.MapMode = "FlatFace"
sketch20.AttachmentOffset = App.Placement(App.Vector(0, 0, 1400), App.Rotation())
sketch20.addGeometry([
    Part.LineSegment(App.Vector(1078, 1530, 0), App.Vector(1666, 1410, 0)),
    Part.LineSegment(App.Vector(1666, 1410, 0), App.Vector(1586, 1018, 0)),
    Part.LineSegment(App.Vector(1586, 1018, 0), App.Vector(998, 1138, 0)),
    Part.LineSegment(App.Vector(998, 1138, 0), App.Vector(1078, 1530, 0)),
], False)
sketch20.addConstraint([
    Sketcher.Constraint("Coincident", 0, 2, 1, 1),
    Sketcher.Constraint("Coincident", 1, 2, 2, 1),
    Sketcher.Constraint("Coincident", 2, 2, 3, 1),
    Sketcher.Constraint("Coincident", 3, 2, 0, 1),
    Sketcher.Constraint("Perpendicular", 0, 1),
    Sketcher.Constraint("Perpendicular", 1, 2),
    Sketcher.Constraint("Perpendicular", 2, 3),
    Sketcher.Constraint("Distance", 0, 600.0),
    Sketcher.Constraint("Distance", 1, 400.0),
    Sketcher.Constraint("DistanceY", -1, 1, 0, 2, 1410.0),
    Sketcher.Constraint("DistanceY", -1, 1, 3, 2, 1530.0),
    Sketcher.Constraint("DistanceX", -1, 1, 0, 2, 1665.653025),
])
pad18 = body18.newObject("PartDesign::Pad", "Pad017")
pad18.Profile = sketch20
pad18.Length = 1100
body19 = doc.addObject("PartDesign::Body", "Body018")

sketch21 = body19.newObject("Sketcher::SketchObject", "Sketch020")
sketch21.AttachmentSupport = (doc.getObject("XY_Plane018"), [""])
sketch21.MapMode = "FlatFace"
sketch21.AttachmentOffset = App.Placement(App.Vector(0, 0, 1400), App.Rotation())
sketch21.addGeometry([
    Part.LineSegment(App.Vector(294, 1690, 0), App.Vector(1078, 1530, 0)),
    Part.LineSegment(App.Vector(1078, 1530, 0), App.Vector(998, 1138, 0)),
    Part.LineSegment(App.Vector(998, 1138, 0), App.Vector(214, 1298, 0)),
    Part.LineSegment(App.Vector(214, 1298, 0), App.Vector(294, 1690, 0)),
], False)
sketch21.addConstraint([
    Sketcher.Constraint("Coincident", 0, 2, 1, 1),
    Sketcher.Constraint("Coincident", 1, 2, 2, 1),
    Sketcher.Constraint("Coincident", 2, 2, 3, 1),
    Sketcher.Constraint("Coincident", 3, 2, 0, 1),
    Sketcher.Constraint("Perpendicular", 0, 1),
    Sketcher.Constraint("Perpendicular", 1, 2),
    Sketcher.Constraint("Perpendicular", 2, 3),
    Sketcher.Constraint("Distance", 0, 800.0),
    Sketcher.Constraint("Distance", 1, 400.0),
    Sketcher.Constraint("DistanceY", -1, 1, 0, 2, 1530.0),
    Sketcher.Constraint("DistanceY", -1, 1, 3, 2, 1690.0),
    Sketcher.Constraint("DistanceX", -1, 1, 2, 2, 213.938769),
])
pad19 = body19.newObject("PartDesign::Pad", "Pad018")
pad19.Profile = sketch21
pad19.Length = 1100
body20 = doc.addObject("PartDesign::Body", "Body019")

sketch22 = body20.newObject("Sketcher::SketchObject", "Sketch021")
sketch22.AttachmentSupport = (doc.getObject("XY_Plane019"), [""])
sketch22.MapMode = "FlatFace"
sketch22.AttachmentOffset = App.Placement(App.Vector(0, 0, 1400), App.Rotation())
sketch22.addGeometry([
    Part.LineSegment(App.Vector(-294, 1810, 0), App.Vector(294, 1690, 0)),
    Part.LineSegment(App.Vector(294, 1690, 0), App.Vector(214, 1298, 0)),
    Part.LineSegment(App.Vector(214, 1298, 0), App.Vector(-374, 1418, 0)),
    Part.LineSegment(App.Vector(-374, 1418, 0), App.Vector(-294, 1810, 0)),
], False)
sketch22.addConstraint([
    Sketcher.Constraint("Coincident", 0, 2, 1, 1),
    Sketcher.Constraint("Coincident", 1, 2, 2, 1),
    Sketcher.Constraint("Coincident", 2, 2, 3, 1),
    Sketcher.Constraint("Coincident", 3, 2, 0, 1),
    Sketcher.Constraint("Perpendicular", 0, 1),
    Sketcher.Constraint("Perpendicular", 1, 2),
    Sketcher.Constraint("Perpendicular", 2, 3),
    Sketcher.Constraint("Distance", 0, 600.0),
    Sketcher.Constraint("Distance", 1, 400.0),
    Sketcher.Constraint("DistanceY", -1, 1, 0, 2, 1690.0),
    Sketcher.Constraint("DistanceY", -1, 1, 3, 2, 1810.0),
    Sketcher.Constraint("DistanceX", -1, 1, 0, 2, 293.938769),
])
pad20 = body20.newObject("PartDesign::Pad", "Pad019")
pad20.Profile = sketch22
pad20.Length = 1100
body21 = doc.addObject("PartDesign::Body", "Body020")

sketch23 = body21.newObject("Sketcher::SketchObject", "Sketch022")
sketch23.AttachmentSupport = (doc.getObject("XY_Plane020"), [""])
sketch23.MapMode = "FlatFace"
sketch23.AttachmentOffset = App.Placement(App.Vector(0, 0, 1600), App.Rotation())
sketch23.addGeometry([
    Part.LineSegment(App.Vector(-882, 1930, 0), App.Vector(-294, 1810, 0)),
    Part.LineSegment(App.Vector(-294, 1810, 0), App.Vector(-374, 1418, 0)),
    Part.LineSegment(App.Vector(-374, 1418, 0), App.Vector(-962, 1538, 0)),
    Part.LineSegment(App.Vector(-962, 1538, 0), App.Vector(-882, 1930, 0)),
], False)
sketch23.addConstraint([
    Sketcher.Constraint("Coincident", 0, 2, 1, 1),
    Sketcher.Constraint("Coincident", 1, 2, 2, 1),
    Sketcher.Constraint("Coincident", 2, 2, 3, 1),
    Sketcher.Constraint("Coincident", 3, 2, 0, 1),
    Sketcher.Constraint("Perpendicular", 0, 1),
    Sketcher.Constraint("Perpendicular", 1, 2),
    Sketcher.Constraint("Perpendicular", 2, 3),
    Sketcher.Constraint("Distance", 0, 600.0),
    Sketcher.Constraint("Distance", 1, 400.0),
    Sketcher.Constraint("DistanceY", -1, 1, 0, 2, 1810.0),
    Sketcher.Constraint("DistanceY", -1, 1, 3, 2, 1930.0),
    Sketcher.Constraint("DistanceX", 0, 2, -1, 1, 293.938769),
])
pad21 = body21.newObject("PartDesign::Pad", "Pad020")
pad21.Profile = sketch23
pad21.Length = 900

doc.recompute()
